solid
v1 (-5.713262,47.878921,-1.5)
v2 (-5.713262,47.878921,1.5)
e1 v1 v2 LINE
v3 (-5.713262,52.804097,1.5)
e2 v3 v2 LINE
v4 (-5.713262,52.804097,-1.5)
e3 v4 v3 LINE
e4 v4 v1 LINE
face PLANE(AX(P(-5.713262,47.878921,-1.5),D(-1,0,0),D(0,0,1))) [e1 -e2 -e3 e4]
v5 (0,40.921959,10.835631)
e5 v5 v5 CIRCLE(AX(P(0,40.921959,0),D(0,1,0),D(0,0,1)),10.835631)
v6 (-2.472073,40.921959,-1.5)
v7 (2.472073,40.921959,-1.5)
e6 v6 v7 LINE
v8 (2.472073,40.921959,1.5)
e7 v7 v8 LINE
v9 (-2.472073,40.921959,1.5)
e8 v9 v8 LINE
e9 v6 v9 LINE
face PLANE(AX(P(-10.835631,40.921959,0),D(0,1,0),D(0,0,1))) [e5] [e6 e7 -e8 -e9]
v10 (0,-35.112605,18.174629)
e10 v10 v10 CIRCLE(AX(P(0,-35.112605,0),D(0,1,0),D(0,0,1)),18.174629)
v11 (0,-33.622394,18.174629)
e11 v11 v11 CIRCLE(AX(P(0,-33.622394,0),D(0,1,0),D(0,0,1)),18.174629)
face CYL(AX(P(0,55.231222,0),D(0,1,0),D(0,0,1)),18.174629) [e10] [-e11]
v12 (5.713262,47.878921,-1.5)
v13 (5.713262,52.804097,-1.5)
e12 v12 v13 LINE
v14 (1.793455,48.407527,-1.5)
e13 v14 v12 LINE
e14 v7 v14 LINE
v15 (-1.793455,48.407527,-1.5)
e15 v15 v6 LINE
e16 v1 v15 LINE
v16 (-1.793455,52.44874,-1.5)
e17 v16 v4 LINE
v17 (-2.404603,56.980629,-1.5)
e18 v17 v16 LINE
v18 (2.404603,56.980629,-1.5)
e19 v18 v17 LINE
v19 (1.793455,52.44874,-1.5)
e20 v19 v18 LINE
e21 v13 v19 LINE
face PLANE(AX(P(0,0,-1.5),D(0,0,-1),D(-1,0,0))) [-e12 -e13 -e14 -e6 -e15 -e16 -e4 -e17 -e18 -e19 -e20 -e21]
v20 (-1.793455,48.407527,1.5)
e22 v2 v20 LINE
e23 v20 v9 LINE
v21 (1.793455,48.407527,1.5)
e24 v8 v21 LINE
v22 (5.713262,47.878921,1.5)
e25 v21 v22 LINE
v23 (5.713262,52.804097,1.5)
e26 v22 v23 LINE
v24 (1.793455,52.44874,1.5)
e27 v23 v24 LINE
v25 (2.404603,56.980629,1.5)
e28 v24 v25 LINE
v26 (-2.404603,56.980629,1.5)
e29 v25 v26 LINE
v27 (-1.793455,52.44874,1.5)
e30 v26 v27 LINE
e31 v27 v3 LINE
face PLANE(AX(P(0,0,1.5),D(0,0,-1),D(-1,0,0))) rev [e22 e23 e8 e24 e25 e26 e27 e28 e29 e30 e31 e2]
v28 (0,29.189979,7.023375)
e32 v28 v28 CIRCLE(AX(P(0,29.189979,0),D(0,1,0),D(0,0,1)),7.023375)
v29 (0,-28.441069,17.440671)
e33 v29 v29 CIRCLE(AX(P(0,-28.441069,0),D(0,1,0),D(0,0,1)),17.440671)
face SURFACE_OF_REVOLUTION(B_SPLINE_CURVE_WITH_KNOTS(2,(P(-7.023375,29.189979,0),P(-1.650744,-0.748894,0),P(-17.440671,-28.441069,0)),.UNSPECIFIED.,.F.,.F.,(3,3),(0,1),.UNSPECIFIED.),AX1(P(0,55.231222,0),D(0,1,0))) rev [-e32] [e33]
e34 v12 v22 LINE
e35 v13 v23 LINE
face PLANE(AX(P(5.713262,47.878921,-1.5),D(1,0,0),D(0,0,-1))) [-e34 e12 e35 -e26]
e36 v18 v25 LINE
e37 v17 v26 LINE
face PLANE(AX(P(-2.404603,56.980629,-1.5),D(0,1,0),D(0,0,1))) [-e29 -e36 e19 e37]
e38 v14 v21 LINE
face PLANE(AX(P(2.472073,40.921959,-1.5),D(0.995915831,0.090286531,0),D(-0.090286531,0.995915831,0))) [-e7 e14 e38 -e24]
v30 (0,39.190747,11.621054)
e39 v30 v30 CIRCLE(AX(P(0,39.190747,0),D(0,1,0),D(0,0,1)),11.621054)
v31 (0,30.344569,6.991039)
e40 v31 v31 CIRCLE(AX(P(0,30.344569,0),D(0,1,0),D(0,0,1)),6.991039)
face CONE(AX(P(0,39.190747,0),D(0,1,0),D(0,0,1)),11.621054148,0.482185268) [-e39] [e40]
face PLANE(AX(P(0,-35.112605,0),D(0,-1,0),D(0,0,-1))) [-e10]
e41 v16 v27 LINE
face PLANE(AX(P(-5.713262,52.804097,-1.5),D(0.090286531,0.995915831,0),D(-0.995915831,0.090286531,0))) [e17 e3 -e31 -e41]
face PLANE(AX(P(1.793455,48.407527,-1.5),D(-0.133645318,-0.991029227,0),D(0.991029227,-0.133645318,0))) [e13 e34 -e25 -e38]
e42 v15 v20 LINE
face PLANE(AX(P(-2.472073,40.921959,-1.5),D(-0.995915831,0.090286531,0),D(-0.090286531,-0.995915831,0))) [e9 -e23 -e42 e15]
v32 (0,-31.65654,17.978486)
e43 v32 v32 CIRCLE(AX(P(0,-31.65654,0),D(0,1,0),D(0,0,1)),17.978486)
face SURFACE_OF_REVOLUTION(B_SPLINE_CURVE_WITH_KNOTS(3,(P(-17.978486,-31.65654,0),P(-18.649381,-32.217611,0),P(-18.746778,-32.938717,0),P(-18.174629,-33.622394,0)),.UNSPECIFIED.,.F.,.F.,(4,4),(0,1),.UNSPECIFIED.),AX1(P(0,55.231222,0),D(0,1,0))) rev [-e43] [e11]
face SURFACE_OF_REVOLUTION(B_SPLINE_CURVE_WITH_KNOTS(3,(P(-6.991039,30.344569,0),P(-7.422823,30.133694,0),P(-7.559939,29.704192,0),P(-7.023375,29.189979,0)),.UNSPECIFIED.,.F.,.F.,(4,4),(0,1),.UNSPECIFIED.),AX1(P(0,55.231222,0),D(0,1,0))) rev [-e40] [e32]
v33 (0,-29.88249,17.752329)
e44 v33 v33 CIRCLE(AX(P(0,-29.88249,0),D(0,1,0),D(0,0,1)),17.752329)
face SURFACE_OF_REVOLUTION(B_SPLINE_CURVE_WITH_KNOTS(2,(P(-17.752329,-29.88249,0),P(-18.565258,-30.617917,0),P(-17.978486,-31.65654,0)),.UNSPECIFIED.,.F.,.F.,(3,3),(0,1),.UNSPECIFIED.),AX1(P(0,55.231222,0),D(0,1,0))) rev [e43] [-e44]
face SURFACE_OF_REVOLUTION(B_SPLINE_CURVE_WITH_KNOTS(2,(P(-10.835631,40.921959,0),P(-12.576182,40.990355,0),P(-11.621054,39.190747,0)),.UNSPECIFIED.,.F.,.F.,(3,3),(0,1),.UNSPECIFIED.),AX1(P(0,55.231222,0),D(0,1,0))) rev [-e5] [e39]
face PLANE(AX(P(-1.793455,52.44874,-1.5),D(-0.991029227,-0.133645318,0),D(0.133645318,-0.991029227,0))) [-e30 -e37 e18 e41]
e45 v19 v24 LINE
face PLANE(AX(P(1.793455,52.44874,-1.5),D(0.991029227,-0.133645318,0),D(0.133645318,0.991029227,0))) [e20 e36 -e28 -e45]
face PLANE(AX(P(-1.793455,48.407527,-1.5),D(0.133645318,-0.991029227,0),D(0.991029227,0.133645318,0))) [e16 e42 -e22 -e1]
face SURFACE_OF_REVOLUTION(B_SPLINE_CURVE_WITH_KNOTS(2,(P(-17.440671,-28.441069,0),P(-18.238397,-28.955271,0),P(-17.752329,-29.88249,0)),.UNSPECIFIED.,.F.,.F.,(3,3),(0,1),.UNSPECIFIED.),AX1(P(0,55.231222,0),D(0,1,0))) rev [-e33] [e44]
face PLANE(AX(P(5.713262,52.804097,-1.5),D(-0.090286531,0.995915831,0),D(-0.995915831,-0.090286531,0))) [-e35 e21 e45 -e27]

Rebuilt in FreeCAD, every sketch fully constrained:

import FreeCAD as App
import Part
import Sketcher
from FreeCAD import Vector
Q = App.Units.Quantity

doc = App.newDocument("Part")
body = doc.addObject("PartDesign::Body", "Body")

sketch1 = doc.addObject("Sketcher::SketchObject", "Sketch")
body.addObject(sketch1)
sketch1.AttachmentSupport = (doc.XY_Plane, [""])
sketch1.MapMode = "FlatFace"
sketch1.addGeometry([
    Part.LineSegment(Vector(-18.174629, -35.112605, 0), Vector(0, -35.112605, 0)),
    Part.LineSegment(Vector(0, -35.112605, 0), Vector(0, 40.921959, 0)),
    Part.LineSegment(Vector(0, 40.921959, 0), Vector(-10.835631, 40.921959, 0)),
    Part.BSplineCurve([Vector(-11.621054, 39.190747, 0), Vector(-12.576182, 40.990355, 0), Vector(-10.835631, 40.921959, 0)], [3, 3], [0, 1], False, 2, [1, 1, 1], False),
    Part.LineSegment(Vector(-11.621054, 39.190747, 0), Vector(-6.991039, 30.344569, 0)),
    Part.BSplineCurve([Vector(-7.023375, 29.189979, 0), Vector(-7.559939, 29.704192, 0), Vector(-7.422823, 30.133694, 0), Vector(-6.991039, 30.344569, 0)], [4, 4], [0, 1], False, 3, [1, 1, 1, 1], False),
    Part.BSplineCurve([Vector(-17.440671, -28.441069, 0), Vector(-1.650744, -0.748894, 0), Vector(-7.023375, 29.189979, 0)], [3, 3], [0, 1], False, 2, [1, 1, 1], False),
    Part.BSplineCurve([Vector(-17.752329, -29.88249, 0), Vector(-18.238397, -28.955271, 0), Vector(-17.440671, -28.441069, 0)], [3, 3], [0, 1], False, 2, [1, 1, 1], False),
    Part.BSplineCurve([Vector(-17.978486, -31.65654, 0), Vector(-18.565258, -30.617917, 0), Vector(-17.752329, -29.88249, 0)], [3, 3], [0, 1], False, 2, [1, 1, 1], False),
    Part.BSplineCurve([Vector(-18.174629, -33.622394, 0), Vector(-18.746778, -32.938717, 0), Vector(-18.649381, -32.217611, 0), Vector(-17.978486, -31.65654, 0)], [4, 4], [0, 1], False, 3, [1, 1, 1, 1], False),
    Part.LineSegment(Vector(-18.174629, -33.622394, 0), Vector(-18.174629, -35.112605, 0)),
], False)
sketch1.addConstraint([
    Sketcher.Constraint("Block", 3),
    Sketcher.Constraint("Block", 5),
    Sketcher.Constraint("Block", 6),
    Sketcher.Constraint("Block", 7),
    Sketcher.Constraint("Block", 8),
    Sketcher.Constraint("Block", 9),
    Sketcher.Constraint("Coincident", 0, 2, 1, 1),
    Sketcher.Constraint("Coincident", 1, 2, 2, 1),
    Sketcher.Constraint("Coincident", 2, 2, 3, 2),
    Sketcher.Constraint("Coincident", 3, 1, 4, 1),
    Sketcher.Constraint("Coincident", 4, 2, 5, 2),
    Sketcher.Constraint("Coincident", 9, 1, 10, 1),
    Sketcher.Constraint("Coincident", 10, 2, 0, 1),
    Sketcher.Constraint("Horizontal", 0),
    Sketcher.Constraint("Vertical", 1),
    Sketcher.Constraint("Horizontal", 2),
    Sketcher.Constraint("Vertical", 10),
    Sketcher.Constraint("PointOnObject", 0, 2, -2),
    Sketcher.Constraint("DistanceY", 10, 2, 10, 1, Q("1.490212 mm")),
])
revolution = doc.addObject("PartDesign::Revolution", "Revolution")
body.addObject(revolution)
revolution.Profile = sketch1
revolution.ReferenceAxis = (sketch1, ["V_Axis"])
revolution.Angle = 360

sketch2 = doc.addObject("Sketcher::SketchObject", "Sketch001")
body.addObject(sketch2)
sketch2.AttachmentSupport = (doc.XY_Plane, [""])
sketch2.MapMode = "FlatFace"
sketch2.addGeometry([
    Part.LineSegment(Vector(-2.5, 40.9, 0), Vector(2.5, 40.9, 0)),
    Part.LineSegment(Vector(2.5, 40.9, 0), Vector(1.8, 48.4, 0)),
    Part.LineSegment(Vector(1.8, 48.4, 0), Vector(5.7, 47.9, 0)),
    Part.LineSegment(Vector(5.7, 47.9, 0), Vector(5.7, 52.8, 0)),
    Part.LineSegment(Vector(5.7, 52.8, 0), Vector(1.8, 52.4, 0)),
    Part.LineSegment(Vector(1.8, 52.4, 0), Vector(2.4, 57, 0)),
    Part.LineSegment(Vector(2.4, 57, 0), Vector(-2.4, 57, 0)),
    Part.LineSegment(Vector(-2.4, 57, 0), Vector(-1.8, 52.4, 0)),
    Part.LineSegment(Vector(-1.8, 52.4, 0), Vector(-5.7, 52.8, 0)),
    Part.LineSegment(Vector(-5.7, 52.8, 0), Vector(-5.7, 47.9, 0)),
    Part.LineSegment(Vector(-5.7, 47.9, 0), Vector(-1.8, 48.4, 0)),
    Part.LineSegment(Vector(-1.8, 48.4, 0), Vector(-2.5, 40.9, 0)),
], False)
sketch2.addConstraint([
    Sketcher.Constraint("Coincident", 0, 2, 1, 1),
    Sketcher.Constraint("Coincident", 1, 2, 2, 1),
    Sketcher.Constraint("Coincident", 2, 2, 3, 1),
    Sketcher.Constraint("Coincident", 3, 2, 4, 1),
    Sketcher.Constraint("Coincident", 4, 2, 5, 1),
    Sketcher.Constraint("Coincident", 5, 2, 6, 1),
    Sketcher.Constraint("Coincident", 6, 2, 7, 1),
    Sketcher.Constraint("Coincident", 7, 2, 8, 1),
    Sketcher.Constraint("Coincident", 8, 2, 9, 1),
    Sketcher.Constraint("Coincident", 9, 2, 10, 1),
    Sketcher.Constraint("Coincident", 10, 2, 11, 1),
    Sketcher.Constraint("Coincident", 11, 2, 0, 1),
    Sketcher.Constraint("Horizontal", 0),
    Sketcher.Constraint("Vertical", 3),
    Sketcher.Constraint("Horizontal", 6),
    Sketcher.Constraint("Vertical", 9),
    Sketcher.Constraint("Symmetric", 4, 2, 7, 2, -2),
    Sketcher.Constraint("Symmetric", 3, 2, 8, 2, -2),
    Sketcher.Constraint("Symmetric", 1, 2, 10, 2, -2),
    Sketcher.Constraint("Perpendicular", 1, 4),
    Sketcher.Constraint("Perpendicular", 2, 5),
    Sketcher.Constraint("Perpendicular", 7, 10),
    Sketcher.Constraint("Perpendicular", 8, 11),
    Sketcher.Constraint("Horizontal", 2, 2, 9, 2),
    Sketcher.Constraint("Vertical", 1, 2, 4, 2),
    Sketcher.Constraint("DistanceY", 1, 2, 5, 2, Q("8.573102 mm")),
    Sketcher.Constraint("Distance", 2, Q("3.955289 mm")),
    Sketcher.Constraint("Distance", 5, Q("4.572911 mm")),
    Sketcher.Constraint("DistanceX", 0, 1, 0, 2, Q("4.944145 mm")),
    Sketcher.Constraint("DistanceX", 6, 2, 6, 1, Q("4.809206 mm")),
    Sketcher.Constraint("DistanceY", 3, 1, 3, 2, Q("4.925176 mm")),
    Sketcher.Constraint("DistanceY", -1, 1, 0, 2, Q("40.921959 mm")),
    Sketcher.Constraint("DistanceY", -1, 1, 2, 2, Q("47.878921 mm")),
])
pad1 = doc.addObject("PartDesign::Pad", "Pad")
body.addObject(pad1)
pad1.Profile = sketch2
pad1.Type = "TwoLengths"
pad1.Length = 1.5
pad1.Length2 = 1.5

doc.recompute()
